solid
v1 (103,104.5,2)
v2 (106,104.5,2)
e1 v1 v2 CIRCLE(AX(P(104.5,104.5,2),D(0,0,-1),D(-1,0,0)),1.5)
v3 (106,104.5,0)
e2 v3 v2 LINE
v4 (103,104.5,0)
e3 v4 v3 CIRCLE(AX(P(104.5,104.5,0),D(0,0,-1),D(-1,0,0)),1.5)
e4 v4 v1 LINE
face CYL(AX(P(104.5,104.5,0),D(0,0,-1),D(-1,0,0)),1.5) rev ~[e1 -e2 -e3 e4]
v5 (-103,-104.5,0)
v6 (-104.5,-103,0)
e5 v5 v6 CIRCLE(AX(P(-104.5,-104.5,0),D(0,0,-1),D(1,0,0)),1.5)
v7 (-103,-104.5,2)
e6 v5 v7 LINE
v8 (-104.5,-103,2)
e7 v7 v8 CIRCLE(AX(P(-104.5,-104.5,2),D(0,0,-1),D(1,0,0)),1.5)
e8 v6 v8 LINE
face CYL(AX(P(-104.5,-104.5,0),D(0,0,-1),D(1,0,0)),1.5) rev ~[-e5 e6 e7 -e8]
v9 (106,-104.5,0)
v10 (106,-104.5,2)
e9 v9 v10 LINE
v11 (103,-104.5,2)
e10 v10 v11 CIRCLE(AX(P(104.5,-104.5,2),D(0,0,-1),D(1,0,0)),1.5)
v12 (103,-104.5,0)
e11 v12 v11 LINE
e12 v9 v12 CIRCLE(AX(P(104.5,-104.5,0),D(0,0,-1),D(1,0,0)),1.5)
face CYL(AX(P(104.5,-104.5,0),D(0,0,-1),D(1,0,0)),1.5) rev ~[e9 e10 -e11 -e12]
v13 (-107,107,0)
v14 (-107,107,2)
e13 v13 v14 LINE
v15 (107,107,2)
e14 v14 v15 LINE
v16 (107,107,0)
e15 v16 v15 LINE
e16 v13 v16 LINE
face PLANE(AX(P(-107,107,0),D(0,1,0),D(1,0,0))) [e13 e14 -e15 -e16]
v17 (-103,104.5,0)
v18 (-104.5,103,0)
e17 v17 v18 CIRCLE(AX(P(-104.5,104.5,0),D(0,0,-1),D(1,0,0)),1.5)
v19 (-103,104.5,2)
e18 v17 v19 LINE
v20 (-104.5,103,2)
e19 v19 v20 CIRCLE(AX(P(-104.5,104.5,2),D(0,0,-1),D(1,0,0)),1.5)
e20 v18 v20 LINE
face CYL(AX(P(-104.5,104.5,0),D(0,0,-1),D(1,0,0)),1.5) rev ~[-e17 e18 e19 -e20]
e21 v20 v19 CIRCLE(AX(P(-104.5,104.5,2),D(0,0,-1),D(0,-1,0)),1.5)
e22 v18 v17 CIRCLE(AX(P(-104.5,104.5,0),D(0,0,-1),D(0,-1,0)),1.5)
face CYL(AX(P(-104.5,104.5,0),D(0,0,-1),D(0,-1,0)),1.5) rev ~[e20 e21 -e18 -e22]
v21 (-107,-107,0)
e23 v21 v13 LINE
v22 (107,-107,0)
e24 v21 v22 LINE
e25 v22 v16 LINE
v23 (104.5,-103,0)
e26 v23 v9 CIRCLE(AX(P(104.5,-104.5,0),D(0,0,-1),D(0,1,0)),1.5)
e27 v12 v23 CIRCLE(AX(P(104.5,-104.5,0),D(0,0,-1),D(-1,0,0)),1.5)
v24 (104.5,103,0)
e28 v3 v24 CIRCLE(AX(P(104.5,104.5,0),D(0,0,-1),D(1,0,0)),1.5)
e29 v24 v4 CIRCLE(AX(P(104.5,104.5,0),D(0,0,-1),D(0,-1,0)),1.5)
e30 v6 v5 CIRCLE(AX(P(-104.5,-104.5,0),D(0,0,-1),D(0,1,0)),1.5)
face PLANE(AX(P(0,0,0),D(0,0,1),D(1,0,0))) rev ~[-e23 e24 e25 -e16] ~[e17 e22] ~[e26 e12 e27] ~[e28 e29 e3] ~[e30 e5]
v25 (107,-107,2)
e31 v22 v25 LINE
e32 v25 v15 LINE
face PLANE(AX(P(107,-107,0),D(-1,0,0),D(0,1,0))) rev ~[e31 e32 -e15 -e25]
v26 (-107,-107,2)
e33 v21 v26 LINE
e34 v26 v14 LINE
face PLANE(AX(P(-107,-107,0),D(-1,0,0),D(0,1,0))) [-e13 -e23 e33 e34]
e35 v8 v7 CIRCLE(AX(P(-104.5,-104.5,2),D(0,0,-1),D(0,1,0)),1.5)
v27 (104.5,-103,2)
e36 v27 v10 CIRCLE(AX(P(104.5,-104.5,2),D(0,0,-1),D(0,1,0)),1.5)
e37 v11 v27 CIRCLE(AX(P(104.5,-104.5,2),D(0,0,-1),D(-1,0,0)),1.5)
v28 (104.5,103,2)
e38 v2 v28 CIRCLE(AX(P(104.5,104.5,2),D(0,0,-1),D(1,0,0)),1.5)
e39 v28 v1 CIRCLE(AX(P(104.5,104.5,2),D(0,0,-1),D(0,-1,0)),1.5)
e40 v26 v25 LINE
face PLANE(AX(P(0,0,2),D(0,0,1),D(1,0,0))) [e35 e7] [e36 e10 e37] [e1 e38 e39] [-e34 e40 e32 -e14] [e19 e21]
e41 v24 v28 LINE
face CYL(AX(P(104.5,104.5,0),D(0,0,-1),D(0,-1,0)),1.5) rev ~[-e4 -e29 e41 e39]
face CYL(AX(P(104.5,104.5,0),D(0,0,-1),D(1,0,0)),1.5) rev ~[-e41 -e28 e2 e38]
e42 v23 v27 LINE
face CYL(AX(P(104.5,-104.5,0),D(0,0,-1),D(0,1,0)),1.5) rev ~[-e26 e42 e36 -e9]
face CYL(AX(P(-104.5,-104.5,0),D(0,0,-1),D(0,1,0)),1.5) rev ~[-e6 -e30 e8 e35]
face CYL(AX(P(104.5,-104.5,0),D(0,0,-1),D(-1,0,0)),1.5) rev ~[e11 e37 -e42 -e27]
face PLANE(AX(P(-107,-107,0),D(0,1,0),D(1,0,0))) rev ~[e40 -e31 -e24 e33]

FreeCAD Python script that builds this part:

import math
import FreeCAD as App
import Part
import Sketcher

doc = App.newDocument("Part")
body = doc.addObject("PartDesign::Body", "Body")

# Sketch on XY plane
sketch1 = body.newObject("Sketcher::SketchObject", "Sketch")
sketch1.AttachmentSupport = (doc.getObject("XY_Plane"), [""])
sketch1.MapMode = "FlatFace"
sketch1.addGeometry([
    Part.LineSegment(App.Vector(-107, 107, 0), App.Vector(-107, -107, 0)),  # 0
    Part.LineSegment(App.Vector(-107, -107, 0), App.Vector(107, -107, 0)),  # 1
    Part.LineSegment(App.Vector(107, -107, 0), App.Vector(107, 107, 0)),  # 2
    Part.LineSegment(App.Vector(107, 107, 0), App.Vector(-107, 107, 0)),  # 3
    Part.ArcOfCircle(Part.Circle(App.Vector(-104.5, -104.5, 0), App.Vector(0, 0, 1), 1.5), math.radians(90), math.radians(360)),  # 4
    Part.ArcOfCircle(Part.Circle(App.Vector(-104.5, -104.5, 0), App.Vector(0, 0, 1), 1.5), math.radians(0), math.radians(90)),  # 5
    Part.ArcOfCircle(Part.Circle(App.Vector(104.5, -104.5, 0), App.Vector(0, 0, 1), 1.5), math.radians(180), math.radians(360)),  # 6
    Part.ArcOfCircle(Part.Circle(App.Vector(104.5, -104.5, 0), App.Vector(0, 0, 1), 1.5), math.radians(90), math.radians(180)),  # 7
    Part.ArcOfCircle(Part.Circle(App.Vector(104.5, -104.5, 0), App.Vector(0, 0, 1), 1.5), math.radians(0), math.radians(90)),  # 8
    Part.ArcOfCircle(Part.Circle(App.Vector(104.5, 104.5, 0), App.Vector(0, 0, 1), 1.5), math.radians(-90), math.radians(0)),  # 9
    Part.ArcOfCircle(Part.Circle(App.Vector(104.5, 104.5, 0), App.Vector(0, 0, 1), 1.5), math.radians(180), math.radians(270)),  # 10
    Part.ArcOfCircle(Part.Circle(App.Vector(104.5, 104.5, 0), App.Vector(0, 0, 1), 1.5), math.radians(0), math.radians(180)),  # 11
    Part.ArcOfCircle(Part.Circle(App.Vector(-104.5, 104.5, 0), App.Vector(0, 0, 1), 1.5), math.radians(0), math.radians(270)),  # 12
    Part.ArcOfCircle(Part.Circle(App.Vector(-104.5, 104.5, 0), App.Vector(0, 0, 1), 1.5), math.radians(-90), math.radians(0)),  # 13
], False)
sketch1.addConstraint([
    Sketcher.Constraint("Coincident", 0, 2, 1, 1),
    Sketcher.Constraint("Coincident", 1, 2, 2, 1),
    Sketcher.Constraint("Coincident", 2, 2, 3, 1),
    Sketcher.Constraint("Coincident", 3, 2, 0, 1),
    Sketcher.Constraint("Tangent", 4, 1, 5, 2),
    Sketcher.Constraint("Coincident", 5, 1, 4, 2),
    Sketcher.Constraint("Tangent", 6, 1, 7, 2),
    Sketcher.Constraint("Tangent", 7, 1, 8, 2),
    Sketcher.Constraint("Tangent", 8, 1, 6, 2),
    Sketcher.Constraint("Tangent", 9, 1, 10, 2),
    Sketcher.Constraint("Tangent", 10, 1, 11, 2),
    Sketcher.Constraint("Tangent", 11, 1, 9, 2),
    Sketcher.Constraint("Tangent", 12, 1, 13, 2),
    Sketcher.Constraint("Coincident", 13, 1, 12, 2),
    Sketcher.Constraint("Vertical", 0),
    Sketcher.Constraint("Horizontal", 1),
    Sketcher.Constraint("Vertical", 2),
    Sketcher.Constraint("Horizontal", 3),
    Sketcher.Constraint("Equal", 5, 6),
    Sketcher.Constraint("Equal", 8, 9),
    Sketcher.Constraint("Equal", 11, 12),
    Sketcher.Constraint("Symmetric", 4, 3, 9, 3, -1, 1),
    Sketcher.Constraint("Symmetric", 6, 3, 12, 3, -1, 1),
    Sketcher.Constraint("Symmetric", 0, 2, 2, 2, -1, 1),
    Sketcher.Constraint("Symmetric", 4, 3, 6, 3, -2),
    Sketcher.Constraint("Horizontal", 8, 3, 5, 1),
    Sketcher.Constraint("Horizontal", 5, 1, 6, 1),
    Sketcher.Constraint("Horizontal", 6, 1, 8, 1),
    Sketcher.Constraint("Horizontal", 13, 3, 10, 1),
    Sketcher.Constraint("Horizontal", 10, 1, 11, 1),
    Sketcher.Constraint("Horizontal", 11, 1, 12, 1),
    Sketcher.Constraint("Vertical", 13, 3, 4, 1),
    Sketcher.Constraint("Vertical", 11, 3, 7, 1),
    Sketcher.Constraint("Vertical", 7, 1, 9, 1),
    Sketcher.Constraint("Vertical", 4, 1, 13, 1),
    Sketcher.Constraint("Equal", 3, 0),
    Sketcher.Constraint("Radius", 4, 1.5),
    Sketcher.Constraint("DistanceX", 1, 1, 1, 2, 214.0),
    Sketcher.Constraint("DistanceY", 4, 1, -1, 1, 103.0),
    Sketcher.Constraint("DistanceX", 5, 1, -1, 1, 103.0),
])
pad1 = body.newObject("PartDesign::Pad", "Pad")
pad1.Profile = sketch1
pad1.Length = 2

doc.recompute()
